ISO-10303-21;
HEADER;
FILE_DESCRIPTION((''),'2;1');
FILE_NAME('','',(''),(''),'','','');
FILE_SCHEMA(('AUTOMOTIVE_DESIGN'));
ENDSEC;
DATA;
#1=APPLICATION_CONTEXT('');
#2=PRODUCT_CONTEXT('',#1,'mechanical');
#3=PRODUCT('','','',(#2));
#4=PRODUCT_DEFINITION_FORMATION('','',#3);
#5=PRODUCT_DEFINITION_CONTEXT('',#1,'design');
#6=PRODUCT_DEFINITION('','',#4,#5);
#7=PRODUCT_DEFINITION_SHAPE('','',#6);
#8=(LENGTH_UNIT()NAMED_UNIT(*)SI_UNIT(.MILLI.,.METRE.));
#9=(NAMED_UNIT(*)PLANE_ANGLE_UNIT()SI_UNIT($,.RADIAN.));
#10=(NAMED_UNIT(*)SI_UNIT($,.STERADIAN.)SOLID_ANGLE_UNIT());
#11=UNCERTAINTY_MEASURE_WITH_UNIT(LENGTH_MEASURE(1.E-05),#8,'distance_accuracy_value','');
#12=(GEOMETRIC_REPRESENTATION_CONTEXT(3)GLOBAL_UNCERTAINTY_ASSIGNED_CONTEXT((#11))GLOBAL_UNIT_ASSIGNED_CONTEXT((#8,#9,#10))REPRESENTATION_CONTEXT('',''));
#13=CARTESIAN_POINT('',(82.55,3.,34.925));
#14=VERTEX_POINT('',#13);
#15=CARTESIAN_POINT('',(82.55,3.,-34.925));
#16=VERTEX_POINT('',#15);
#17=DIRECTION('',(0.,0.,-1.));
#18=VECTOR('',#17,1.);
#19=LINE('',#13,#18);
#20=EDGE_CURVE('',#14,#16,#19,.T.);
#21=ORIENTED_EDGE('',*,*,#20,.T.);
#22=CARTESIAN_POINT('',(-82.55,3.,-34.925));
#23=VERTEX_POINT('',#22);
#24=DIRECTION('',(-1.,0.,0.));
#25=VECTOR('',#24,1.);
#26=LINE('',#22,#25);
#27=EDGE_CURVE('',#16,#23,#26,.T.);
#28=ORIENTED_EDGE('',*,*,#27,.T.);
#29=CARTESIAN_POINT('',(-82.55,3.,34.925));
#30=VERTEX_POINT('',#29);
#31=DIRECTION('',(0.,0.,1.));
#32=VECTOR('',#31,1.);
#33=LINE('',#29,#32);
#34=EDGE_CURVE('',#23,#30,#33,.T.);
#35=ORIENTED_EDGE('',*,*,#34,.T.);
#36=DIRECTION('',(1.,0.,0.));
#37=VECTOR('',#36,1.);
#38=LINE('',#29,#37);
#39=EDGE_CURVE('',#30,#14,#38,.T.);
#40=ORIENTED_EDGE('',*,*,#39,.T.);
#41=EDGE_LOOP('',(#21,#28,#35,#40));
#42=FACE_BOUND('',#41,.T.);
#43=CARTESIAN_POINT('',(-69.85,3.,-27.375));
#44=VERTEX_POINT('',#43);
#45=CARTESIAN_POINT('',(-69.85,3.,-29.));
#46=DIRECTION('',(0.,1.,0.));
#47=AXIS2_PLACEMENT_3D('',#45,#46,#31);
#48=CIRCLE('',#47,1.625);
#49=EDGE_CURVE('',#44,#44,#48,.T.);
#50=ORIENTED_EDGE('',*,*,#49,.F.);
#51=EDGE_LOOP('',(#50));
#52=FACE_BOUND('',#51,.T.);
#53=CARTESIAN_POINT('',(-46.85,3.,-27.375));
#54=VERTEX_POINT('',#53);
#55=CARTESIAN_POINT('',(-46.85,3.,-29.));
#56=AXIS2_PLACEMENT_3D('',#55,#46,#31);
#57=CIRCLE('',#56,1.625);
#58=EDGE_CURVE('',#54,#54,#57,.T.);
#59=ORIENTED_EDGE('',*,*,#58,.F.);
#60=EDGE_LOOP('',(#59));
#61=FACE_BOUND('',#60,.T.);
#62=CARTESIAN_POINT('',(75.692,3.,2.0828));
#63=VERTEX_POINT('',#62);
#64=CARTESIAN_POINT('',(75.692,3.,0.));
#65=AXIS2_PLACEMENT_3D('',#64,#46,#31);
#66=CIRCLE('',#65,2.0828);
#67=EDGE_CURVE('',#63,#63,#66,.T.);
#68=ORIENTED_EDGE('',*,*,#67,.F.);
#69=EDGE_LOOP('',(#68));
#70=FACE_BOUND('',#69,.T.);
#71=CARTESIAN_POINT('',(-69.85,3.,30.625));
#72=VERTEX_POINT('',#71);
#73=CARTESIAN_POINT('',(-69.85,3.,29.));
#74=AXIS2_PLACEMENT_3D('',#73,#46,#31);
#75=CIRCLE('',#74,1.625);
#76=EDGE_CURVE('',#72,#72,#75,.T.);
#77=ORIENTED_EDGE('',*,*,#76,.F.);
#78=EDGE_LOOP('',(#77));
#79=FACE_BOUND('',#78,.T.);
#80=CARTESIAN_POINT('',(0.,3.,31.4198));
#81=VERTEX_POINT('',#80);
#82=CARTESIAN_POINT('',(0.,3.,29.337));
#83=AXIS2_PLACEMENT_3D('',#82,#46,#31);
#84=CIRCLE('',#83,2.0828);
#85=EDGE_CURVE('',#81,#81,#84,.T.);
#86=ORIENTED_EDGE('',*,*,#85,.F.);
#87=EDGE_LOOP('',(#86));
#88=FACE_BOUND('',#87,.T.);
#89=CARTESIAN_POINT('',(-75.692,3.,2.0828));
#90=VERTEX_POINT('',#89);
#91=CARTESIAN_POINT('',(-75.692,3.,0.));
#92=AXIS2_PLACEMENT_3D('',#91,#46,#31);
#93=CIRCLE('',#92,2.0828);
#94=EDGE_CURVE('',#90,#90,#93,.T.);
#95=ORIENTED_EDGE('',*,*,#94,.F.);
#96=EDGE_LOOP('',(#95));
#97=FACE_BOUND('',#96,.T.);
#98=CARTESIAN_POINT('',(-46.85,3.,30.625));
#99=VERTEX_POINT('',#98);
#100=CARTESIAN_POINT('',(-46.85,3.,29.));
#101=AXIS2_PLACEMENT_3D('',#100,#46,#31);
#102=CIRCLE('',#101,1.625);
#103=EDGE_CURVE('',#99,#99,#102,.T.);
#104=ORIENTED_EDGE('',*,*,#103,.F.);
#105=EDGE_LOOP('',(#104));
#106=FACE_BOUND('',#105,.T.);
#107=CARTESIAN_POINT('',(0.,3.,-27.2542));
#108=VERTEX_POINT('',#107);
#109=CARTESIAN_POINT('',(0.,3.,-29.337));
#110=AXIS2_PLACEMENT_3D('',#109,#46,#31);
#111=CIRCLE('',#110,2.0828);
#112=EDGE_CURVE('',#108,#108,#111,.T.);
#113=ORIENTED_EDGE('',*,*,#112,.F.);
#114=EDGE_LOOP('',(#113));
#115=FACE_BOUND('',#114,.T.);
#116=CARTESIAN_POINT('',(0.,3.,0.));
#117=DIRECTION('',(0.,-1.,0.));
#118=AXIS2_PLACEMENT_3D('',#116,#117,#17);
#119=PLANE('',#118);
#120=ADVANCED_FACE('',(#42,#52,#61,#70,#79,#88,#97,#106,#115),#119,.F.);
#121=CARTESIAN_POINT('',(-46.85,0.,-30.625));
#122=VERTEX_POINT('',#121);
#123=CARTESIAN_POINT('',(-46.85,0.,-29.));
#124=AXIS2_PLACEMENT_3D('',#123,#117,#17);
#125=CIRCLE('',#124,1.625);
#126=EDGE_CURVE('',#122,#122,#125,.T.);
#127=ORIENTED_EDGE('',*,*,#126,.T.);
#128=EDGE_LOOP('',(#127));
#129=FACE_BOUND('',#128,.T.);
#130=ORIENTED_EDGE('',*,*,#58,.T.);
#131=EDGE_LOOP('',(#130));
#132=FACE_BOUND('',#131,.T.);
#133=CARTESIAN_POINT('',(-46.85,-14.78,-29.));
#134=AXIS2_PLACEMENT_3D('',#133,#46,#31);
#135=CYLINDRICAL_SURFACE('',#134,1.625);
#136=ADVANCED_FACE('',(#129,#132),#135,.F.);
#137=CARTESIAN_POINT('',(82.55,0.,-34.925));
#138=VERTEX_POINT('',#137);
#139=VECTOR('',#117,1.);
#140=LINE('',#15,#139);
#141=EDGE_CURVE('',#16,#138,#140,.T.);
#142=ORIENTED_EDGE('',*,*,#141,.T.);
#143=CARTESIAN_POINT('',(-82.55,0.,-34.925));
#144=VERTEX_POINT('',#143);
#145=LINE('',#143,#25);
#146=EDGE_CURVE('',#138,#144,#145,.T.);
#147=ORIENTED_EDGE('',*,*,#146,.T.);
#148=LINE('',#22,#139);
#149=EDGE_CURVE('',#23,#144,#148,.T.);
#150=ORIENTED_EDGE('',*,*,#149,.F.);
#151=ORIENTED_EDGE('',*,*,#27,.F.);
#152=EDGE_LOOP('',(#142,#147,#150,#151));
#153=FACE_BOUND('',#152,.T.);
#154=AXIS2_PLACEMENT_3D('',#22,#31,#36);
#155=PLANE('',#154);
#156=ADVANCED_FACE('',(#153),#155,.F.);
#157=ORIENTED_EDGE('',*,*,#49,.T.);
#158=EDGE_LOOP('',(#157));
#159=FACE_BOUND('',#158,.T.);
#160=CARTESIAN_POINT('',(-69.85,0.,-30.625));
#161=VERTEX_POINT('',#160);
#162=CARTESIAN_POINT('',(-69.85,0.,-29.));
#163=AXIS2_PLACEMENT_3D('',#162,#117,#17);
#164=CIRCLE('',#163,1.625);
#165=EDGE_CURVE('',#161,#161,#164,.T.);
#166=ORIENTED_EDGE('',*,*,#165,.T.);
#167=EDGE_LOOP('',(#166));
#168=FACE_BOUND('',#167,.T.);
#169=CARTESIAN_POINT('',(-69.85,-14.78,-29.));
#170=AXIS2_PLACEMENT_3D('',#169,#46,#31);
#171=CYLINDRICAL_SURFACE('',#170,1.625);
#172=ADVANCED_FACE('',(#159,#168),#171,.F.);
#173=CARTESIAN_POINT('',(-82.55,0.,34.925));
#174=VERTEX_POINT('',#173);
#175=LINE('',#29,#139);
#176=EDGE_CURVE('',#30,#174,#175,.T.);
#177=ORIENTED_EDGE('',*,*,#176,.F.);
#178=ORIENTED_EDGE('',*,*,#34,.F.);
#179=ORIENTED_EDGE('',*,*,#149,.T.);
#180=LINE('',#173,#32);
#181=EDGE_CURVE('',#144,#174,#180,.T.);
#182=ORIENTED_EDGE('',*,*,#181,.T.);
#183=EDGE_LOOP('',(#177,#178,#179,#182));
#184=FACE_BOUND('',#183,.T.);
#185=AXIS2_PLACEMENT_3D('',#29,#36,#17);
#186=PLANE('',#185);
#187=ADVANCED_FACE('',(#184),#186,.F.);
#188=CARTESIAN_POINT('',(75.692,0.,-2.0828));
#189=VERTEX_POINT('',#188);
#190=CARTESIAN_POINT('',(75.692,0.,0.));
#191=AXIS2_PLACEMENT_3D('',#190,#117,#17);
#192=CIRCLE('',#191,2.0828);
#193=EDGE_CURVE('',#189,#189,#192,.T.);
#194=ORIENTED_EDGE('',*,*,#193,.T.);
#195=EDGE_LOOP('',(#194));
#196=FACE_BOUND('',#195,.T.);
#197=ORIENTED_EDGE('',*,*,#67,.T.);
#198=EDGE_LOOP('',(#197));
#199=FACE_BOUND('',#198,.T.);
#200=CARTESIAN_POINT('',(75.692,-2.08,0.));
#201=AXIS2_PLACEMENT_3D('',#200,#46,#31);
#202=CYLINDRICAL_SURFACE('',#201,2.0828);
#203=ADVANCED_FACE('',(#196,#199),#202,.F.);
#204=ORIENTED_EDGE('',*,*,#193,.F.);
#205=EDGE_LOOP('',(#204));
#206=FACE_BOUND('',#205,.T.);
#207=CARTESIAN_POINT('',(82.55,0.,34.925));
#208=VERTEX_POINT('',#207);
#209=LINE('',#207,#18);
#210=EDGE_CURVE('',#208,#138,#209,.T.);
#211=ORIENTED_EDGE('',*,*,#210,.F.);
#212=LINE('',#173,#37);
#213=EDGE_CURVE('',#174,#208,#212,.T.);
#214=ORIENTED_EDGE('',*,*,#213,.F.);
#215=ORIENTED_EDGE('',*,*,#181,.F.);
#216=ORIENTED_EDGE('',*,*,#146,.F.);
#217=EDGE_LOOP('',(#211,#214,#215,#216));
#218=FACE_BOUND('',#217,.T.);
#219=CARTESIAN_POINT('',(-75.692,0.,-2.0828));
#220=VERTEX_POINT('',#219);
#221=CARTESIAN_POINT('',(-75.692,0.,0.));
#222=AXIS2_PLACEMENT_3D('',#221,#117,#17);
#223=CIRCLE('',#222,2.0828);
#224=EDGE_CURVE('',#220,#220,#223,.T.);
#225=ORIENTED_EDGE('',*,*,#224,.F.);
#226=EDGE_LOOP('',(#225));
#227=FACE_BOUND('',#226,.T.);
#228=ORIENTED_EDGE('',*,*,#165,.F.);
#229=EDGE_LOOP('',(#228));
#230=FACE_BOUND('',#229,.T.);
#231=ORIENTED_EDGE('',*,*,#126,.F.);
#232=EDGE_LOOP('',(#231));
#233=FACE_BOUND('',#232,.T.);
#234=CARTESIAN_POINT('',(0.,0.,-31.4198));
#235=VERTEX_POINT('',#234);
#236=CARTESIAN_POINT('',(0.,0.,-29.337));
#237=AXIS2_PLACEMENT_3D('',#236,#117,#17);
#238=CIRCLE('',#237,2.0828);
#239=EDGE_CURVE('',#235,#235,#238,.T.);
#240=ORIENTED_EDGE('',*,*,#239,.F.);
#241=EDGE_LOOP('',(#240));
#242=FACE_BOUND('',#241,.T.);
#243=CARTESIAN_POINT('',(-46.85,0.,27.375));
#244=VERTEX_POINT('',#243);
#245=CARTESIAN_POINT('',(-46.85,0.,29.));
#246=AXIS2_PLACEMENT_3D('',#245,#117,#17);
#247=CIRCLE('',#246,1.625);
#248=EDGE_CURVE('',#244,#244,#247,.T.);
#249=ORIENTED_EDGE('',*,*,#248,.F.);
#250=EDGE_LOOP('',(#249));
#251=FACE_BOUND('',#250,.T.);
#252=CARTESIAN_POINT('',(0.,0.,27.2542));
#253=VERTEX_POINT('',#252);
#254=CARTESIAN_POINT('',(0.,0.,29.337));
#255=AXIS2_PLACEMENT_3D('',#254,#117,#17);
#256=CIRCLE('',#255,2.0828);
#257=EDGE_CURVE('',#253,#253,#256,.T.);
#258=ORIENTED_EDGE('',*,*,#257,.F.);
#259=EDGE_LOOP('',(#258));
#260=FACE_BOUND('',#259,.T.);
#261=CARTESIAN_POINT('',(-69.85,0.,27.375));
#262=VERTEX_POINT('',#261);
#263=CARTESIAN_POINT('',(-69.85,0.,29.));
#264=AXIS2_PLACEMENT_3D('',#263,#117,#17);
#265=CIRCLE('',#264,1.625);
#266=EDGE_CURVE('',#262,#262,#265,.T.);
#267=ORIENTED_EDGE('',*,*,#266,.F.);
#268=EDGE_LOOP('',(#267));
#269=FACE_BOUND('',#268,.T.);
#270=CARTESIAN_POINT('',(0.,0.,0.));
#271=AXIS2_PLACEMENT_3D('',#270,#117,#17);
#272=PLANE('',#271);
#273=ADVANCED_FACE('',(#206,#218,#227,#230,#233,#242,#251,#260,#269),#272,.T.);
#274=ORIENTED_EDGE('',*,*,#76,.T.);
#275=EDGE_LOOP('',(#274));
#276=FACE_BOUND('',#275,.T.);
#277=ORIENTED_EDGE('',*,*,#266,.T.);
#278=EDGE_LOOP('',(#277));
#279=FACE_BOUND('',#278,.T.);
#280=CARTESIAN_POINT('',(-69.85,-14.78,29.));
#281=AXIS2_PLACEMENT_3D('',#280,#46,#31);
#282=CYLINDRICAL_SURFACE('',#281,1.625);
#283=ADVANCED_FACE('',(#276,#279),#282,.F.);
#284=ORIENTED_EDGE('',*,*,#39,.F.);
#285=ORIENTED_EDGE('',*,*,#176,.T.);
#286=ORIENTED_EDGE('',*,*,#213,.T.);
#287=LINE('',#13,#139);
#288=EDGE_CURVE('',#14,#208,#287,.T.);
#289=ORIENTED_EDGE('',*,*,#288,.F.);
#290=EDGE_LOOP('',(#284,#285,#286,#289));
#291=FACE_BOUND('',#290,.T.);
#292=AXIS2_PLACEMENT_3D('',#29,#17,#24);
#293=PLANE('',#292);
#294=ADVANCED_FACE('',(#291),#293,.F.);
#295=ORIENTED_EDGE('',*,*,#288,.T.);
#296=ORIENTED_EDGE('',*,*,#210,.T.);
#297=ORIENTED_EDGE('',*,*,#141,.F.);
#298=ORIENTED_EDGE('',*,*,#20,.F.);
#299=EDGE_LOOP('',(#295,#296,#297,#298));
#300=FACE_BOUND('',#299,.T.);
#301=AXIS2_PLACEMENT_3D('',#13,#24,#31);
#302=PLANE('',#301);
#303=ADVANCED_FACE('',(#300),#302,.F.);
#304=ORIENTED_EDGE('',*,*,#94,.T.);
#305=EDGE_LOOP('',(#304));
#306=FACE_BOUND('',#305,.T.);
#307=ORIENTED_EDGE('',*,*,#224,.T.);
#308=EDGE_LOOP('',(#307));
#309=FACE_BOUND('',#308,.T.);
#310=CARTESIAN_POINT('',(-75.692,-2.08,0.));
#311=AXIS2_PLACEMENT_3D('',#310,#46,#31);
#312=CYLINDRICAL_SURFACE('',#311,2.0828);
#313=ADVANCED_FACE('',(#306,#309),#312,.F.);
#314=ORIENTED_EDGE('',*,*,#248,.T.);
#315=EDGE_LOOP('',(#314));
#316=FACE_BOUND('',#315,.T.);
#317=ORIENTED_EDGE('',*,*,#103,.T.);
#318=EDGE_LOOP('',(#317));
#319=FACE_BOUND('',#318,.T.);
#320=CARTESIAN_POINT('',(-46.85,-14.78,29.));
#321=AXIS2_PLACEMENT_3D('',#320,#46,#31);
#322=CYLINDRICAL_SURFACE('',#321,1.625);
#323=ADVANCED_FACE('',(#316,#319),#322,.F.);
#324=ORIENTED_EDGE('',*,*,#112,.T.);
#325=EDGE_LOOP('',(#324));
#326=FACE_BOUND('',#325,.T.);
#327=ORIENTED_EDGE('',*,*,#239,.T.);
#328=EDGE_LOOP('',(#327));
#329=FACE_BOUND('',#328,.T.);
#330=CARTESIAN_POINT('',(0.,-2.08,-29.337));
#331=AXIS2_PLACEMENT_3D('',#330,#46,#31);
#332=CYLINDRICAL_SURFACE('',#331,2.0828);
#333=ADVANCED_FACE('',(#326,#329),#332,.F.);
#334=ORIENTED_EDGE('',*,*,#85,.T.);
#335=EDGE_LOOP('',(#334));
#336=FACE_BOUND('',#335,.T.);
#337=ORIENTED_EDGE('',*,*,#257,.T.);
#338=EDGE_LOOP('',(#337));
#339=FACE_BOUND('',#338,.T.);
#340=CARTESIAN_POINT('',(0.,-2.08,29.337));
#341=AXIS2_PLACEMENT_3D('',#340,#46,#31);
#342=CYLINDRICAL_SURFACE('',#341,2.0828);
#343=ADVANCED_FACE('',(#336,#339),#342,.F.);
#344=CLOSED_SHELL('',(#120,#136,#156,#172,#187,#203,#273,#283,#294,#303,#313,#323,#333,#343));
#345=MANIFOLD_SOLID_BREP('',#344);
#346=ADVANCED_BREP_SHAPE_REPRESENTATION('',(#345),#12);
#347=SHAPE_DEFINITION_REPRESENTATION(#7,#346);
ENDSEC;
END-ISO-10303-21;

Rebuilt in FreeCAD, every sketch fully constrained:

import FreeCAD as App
import Part
import Sketcher
from FreeCAD import Vector
Q = App.Units.Quantity


def add_polygon(sketch, points):
    """Adds a closed chain of lines whose ends are joined by coincident constraints."""
    first, n = sketch.GeometryCount, len(points)
    for a, b in zip(points, points[1:] + points[:1]):
        sketch.addGeometry(Part.LineSegment(App.Vector(*a, 0), App.Vector(*b, 0)), False)
    for i in range(n):
        sketch.addConstraint(Sketcher.Constraint("Coincident", first + i, 2, first + (i + 1) % n, 1))

doc = App.newDocument("Part")
body = doc.addObject("PartDesign::Body", "Body")

sketch1 = body.newObject("Sketcher::SketchObject", "Sketch")
sketch1.AttachmentSupport = (doc.getObject("XZ_Plane"), [""])
sketch1.MapMode = "FlatFace"
add_polygon(sketch1, [(-82.55, -34.925), (-82.55, 34.925), (82.55, 34.925), (82.55, -34.925)])
sketch1.addConstraint([
    Sketcher.Constraint("Vertical", 0),
    Sketcher.Constraint("Horizontal", 1),
    Sketcher.Constraint("Vertical", 2),
    Sketcher.Constraint("Horizontal", 3),
    Sketcher.Constraint("Symmetric", 0, 2, 2, 2, -1, 1),
    Sketcher.Constraint("DistanceX", 1, 1, 1, 2, Q("6.5 in")),
    Sketcher.Constraint("DistanceY", 0, 1, 0, 2, Q("2.75 in")),
])
pad1 = body.newObject("PartDesign::Pad", "Pad")
pad1.Profile = sketch1
pad1.Length = 3
pad1.Reversed = True

sketch2 = body.newObject("Sketcher::SketchObject", "Sketch001")
sketch2.AttachmentSupport = (doc.getObject("XZ_Plane"), [""])
sketch2.MapMode = "FlatFace"
sketch2.AttachmentOffset = App.Placement(Vector(0, 0, -3), App.Rotation())
sketch2.addGeometry([
    Part.Circle(Vector(-75.692, 0, 0), Vector(0, 0, 1), 2.0828),
    Part.Circle(Vector(75.692, 0, 0), Vector(0, 0, 1), 2.0828),
    Part.Circle(Vector(0, 29.337, 0), Vector(0, 0, 1), 2.0828),
    Part.Circle(Vector(0, -29.337, 0), Vector(0, 0, 1), 2.0828),
], False)
sketch2.addConstraint([
    Sketcher.Constraint("Equal", 0, 1),
    Sketcher.Constraint("Equal", 1, 2),
    Sketcher.Constraint("Equal", 2, 3),
    Sketcher.Constraint("Symmetric", 0, 3, 1, 3, -1, 1),
    Sketcher.Constraint("Symmetric", 2, 3, 3, 3, -1, 1),
    Sketcher.Constraint("PointOnObject", 0, 3, -1),
    Sketcher.Constraint("PointOnObject", 2, 3, -2),
    Sketcher.Constraint("Diameter", 0, Q("0.164 in")),
    Sketcher.Constraint("DistanceX", 0, 3, -1, 1, Q("2.98 in")),
    Sketcher.Constraint("DistanceY", 3, 3, 2, 3, Q("2.31 in")),
])
pocket1 = body.newObject("PartDesign::Pocket", "Pocket")
pocket1.Profile = sketch2
pocket1.Length = Q("0.2 in")
pocket1.Reversed = True

sketch3 = body.newObject("Sketcher::SketchObject", "Sketch002")
sketch3.AttachmentSupport = (doc.getObject("XZ_Plane"), [""])
sketch3.MapMode = "FlatFace"
sketch3.AttachmentOffset = App.Placement(Vector(0, 0, -3), App.Rotation())
sketch3.addGeometry([
    Part.Circle(Vector(-69.85, -29, 0), Vector(0, 0, 1), 1.625),
    Part.Circle(Vector(-46.85, -29, 0), Vector(0, 0, 1), 1.625),
    Part.Circle(Vector(-46.85, 29, 0), Vector(0, 0, 1), 1.625),
    Part.Circle(Vector(-69.85, 29, 0), Vector(0, 0, 1), 1.625),
], False)
sketch3.addConstraint([
    Sketcher.Constraint("Equal", 0, 1),
    Sketcher.Constraint("Equal", 1, 2),
    Sketcher.Constraint("Equal", 2, 3),
    Sketcher.Constraint("Symmetric", 1, 3, 2, 3, -1),
    Sketcher.Constraint("Symmetric", 0, 3, 3, 3, -1),
    Sketcher.Constraint("Horizontal", 0, 3, 1, 3),
    Sketcher.Constraint("Diameter", 0, 3.25),
    Sketcher.Constraint("DistanceX", 0, 3, -1, 1, Q("2.75 in")),
    Sketcher.Constraint("DistanceY", 0, 3, -1, 1, 29.0),
    Sketcher.Constraint("DistanceX", 1, 3, -1, 1, 46.85),
])
pocket2 = body.newObject("PartDesign::Pocket", "Pocket001")
pocket2.Profile = sketch3
pocket2.Length = Q("0.7 in")
pocket2.Reversed = True

doc.recompute()
